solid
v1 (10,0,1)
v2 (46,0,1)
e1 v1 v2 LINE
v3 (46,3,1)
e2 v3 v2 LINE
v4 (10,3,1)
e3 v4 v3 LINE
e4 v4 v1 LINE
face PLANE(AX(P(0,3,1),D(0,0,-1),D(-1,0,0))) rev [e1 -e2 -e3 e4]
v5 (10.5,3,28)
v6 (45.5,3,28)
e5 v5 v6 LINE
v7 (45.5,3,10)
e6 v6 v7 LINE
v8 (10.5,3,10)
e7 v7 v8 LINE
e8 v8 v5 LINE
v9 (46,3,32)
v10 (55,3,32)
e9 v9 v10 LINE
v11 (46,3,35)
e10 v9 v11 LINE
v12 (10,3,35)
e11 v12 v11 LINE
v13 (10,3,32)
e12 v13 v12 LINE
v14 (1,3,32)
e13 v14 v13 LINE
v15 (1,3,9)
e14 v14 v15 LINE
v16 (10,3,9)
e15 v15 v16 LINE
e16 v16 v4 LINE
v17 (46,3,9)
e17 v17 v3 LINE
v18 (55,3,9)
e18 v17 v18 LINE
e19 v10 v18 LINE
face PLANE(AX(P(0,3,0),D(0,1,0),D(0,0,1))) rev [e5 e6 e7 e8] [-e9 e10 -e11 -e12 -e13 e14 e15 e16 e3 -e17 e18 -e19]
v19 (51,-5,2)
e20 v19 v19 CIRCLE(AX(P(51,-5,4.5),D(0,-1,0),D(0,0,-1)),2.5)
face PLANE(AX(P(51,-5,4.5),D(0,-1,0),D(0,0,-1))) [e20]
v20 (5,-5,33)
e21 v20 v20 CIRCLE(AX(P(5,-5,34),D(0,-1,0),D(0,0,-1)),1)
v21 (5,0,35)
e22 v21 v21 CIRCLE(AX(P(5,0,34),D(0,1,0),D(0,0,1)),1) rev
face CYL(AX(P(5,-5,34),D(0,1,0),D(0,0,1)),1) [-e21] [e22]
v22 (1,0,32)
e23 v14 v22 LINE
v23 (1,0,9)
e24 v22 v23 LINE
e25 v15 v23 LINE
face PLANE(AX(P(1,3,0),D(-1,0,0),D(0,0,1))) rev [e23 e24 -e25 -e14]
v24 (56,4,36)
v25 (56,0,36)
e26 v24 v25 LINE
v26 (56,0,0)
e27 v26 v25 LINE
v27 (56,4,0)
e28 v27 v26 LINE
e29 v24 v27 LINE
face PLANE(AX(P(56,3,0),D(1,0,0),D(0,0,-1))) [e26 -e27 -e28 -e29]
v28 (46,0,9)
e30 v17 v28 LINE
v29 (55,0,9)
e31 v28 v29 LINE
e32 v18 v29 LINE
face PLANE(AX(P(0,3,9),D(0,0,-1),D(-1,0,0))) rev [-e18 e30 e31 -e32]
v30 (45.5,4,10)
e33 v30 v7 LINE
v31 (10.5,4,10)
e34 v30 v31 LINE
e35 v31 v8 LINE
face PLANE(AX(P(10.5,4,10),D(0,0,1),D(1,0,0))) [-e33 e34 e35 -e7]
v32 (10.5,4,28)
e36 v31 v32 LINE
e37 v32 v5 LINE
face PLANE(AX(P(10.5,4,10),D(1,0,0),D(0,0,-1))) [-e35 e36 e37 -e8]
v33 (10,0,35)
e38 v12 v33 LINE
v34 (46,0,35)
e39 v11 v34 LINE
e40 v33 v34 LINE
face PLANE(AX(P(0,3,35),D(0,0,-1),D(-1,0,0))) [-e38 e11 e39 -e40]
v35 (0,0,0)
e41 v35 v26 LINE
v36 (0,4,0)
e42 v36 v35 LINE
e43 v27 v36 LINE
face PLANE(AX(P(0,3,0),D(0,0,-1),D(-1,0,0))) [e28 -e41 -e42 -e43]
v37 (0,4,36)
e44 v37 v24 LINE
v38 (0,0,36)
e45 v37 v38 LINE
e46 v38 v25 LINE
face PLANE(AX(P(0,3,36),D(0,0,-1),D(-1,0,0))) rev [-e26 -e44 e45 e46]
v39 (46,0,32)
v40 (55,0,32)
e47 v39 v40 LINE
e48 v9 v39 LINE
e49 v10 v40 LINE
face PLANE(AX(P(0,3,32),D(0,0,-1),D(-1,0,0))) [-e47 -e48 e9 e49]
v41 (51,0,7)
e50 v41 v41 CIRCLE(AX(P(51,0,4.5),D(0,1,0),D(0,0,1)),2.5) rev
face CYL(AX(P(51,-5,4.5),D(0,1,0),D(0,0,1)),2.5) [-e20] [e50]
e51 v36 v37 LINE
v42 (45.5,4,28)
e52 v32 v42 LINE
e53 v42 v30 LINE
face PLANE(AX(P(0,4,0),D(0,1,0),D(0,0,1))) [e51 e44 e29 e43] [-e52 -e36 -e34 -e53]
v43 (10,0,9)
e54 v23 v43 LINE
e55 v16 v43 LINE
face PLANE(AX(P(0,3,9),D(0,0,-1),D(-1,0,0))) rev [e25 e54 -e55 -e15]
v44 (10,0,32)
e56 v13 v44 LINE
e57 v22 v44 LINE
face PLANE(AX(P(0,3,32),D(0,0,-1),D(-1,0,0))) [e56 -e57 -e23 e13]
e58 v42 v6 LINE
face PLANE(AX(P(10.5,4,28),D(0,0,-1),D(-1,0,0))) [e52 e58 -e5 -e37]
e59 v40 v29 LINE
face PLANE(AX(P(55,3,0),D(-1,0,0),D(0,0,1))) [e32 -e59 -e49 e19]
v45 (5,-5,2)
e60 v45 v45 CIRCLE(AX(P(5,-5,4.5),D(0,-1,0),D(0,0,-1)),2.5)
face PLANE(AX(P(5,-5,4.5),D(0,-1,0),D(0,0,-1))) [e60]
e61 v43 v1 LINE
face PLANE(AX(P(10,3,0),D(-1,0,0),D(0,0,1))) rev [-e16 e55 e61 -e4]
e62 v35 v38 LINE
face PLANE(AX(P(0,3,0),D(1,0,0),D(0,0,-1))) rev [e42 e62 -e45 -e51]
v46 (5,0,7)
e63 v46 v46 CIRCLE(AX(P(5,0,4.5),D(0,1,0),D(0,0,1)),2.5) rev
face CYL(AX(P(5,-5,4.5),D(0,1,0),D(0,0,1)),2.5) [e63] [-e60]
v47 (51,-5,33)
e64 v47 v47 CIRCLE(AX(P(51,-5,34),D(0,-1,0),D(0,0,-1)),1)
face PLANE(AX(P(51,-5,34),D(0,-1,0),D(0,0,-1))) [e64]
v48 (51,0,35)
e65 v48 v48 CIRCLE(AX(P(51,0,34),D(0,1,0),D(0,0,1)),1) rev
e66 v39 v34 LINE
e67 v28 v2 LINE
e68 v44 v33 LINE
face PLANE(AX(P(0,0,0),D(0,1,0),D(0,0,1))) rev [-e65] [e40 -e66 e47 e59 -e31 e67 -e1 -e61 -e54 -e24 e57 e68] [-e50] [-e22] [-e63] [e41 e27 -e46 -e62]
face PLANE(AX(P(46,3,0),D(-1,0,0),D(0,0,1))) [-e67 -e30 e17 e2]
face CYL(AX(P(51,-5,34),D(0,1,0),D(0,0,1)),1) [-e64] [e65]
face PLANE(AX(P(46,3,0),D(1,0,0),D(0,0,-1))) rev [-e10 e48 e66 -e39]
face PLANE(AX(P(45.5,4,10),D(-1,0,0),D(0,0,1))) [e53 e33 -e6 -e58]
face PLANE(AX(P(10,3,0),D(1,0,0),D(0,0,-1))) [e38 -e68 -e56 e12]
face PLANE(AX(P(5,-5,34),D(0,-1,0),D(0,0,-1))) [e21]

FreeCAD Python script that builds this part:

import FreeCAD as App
import Part
import Sketcher

V = App.Vector

doc = App.newDocument("Part")
body = doc.addObject("PartDesign::Body", "Body")

# Sketch on XZ plane
sketch1 = body.newObject("Sketcher::SketchObject", "Sketch")
sketch1.AttachmentSupport = (doc.getObject("XZ_Plane"), [""])
sketch1.MapMode = "FlatFace"
sketch1.addGeometry(Part.LineSegment(V(0, 0, 0), V(0, 36, 0)), False)
sketch1.addGeometry(Part.LineSegment(V(0, 36, 0), V(56, 36, 0)), False)
sketch1.addGeometry(Part.LineSegment(V(56, 36, 0), V(56, 0, 0)), False)
sketch1.addGeometry(Part.LineSegment(V(56, 0, 0), V(0, 0, 0)), False)
sketch1.addGeometry(Part.LineSegment(V(10, 35, 0), V(10, 32, 0)), False)
sketch1.addGeometry(Part.LineSegment(V(10, 32, 0), V(1, 32, 0)), False)
sketch1.addGeometry(Part.LineSegment(V(1, 32, 0), V(1, 9, 0)), False)
sketch1.addGeometry(Part.LineSegment(V(1, 9, 0), V(10, 9, 0)), False)
sketch1.addGeometry(Part.LineSegment(V(10, 9, 0), V(10, 1, 0)), False)
sketch1.addGeometry(Part.LineSegment(V(10, 1, 0), V(46, 1, 0)), False)
sketch1.addGeometry(Part.LineSegment(V(46, 1, 0), V(46, 9, 0)), False)
sketch1.addGeometry(Part.LineSegment(V(46, 9, 0), V(55, 9, 0)), False)
sketch1.addGeometry(Part.LineSegment(V(55, 9, 0), V(55, 32, 0)), False)
sketch1.addGeometry(Part.LineSegment(V(55, 32, 0), V(46, 32, 0)), False)
sketch1.addGeometry(Part.LineSegment(V(46, 32, 0), V(46, 35, 0)), False)
sketch1.addGeometry(Part.LineSegment(V(46, 35, 0), V(10, 35, 0)), False)
sketch1.addConstraint(Sketcher.Constraint("Coincident", 0, 2, 1, 1))
sketch1.addConstraint(Sketcher.Constraint("Coincident", 1, 2, 2, 1))
sketch1.addConstraint(Sketcher.Constraint("Coincident", 2, 2, 3, 1))
sketch1.addConstraint(Sketcher.Constraint("Coincident", 3, 2, 0, 1))
sketch1.addConstraint(Sketcher.Constraint("Coincident", 4, 2, 5, 1))
sketch1.addConstraint(Sketcher.Constraint("Coincident", 5, 2, 6, 1))
sketch1.addConstraint(Sketcher.Constraint("Coincident", 6, 2, 7, 1))
sketch1.addConstraint(Sketcher.Constraint("Coincident", 7, 2, 8, 1))
sketch1.addConstraint(Sketcher.Constraint("Coincident", 8, 2, 9, 1))
sketch1.addConstraint(Sketcher.Constraint("Coincident", 9, 2, 10, 1))
sketch1.addConstraint(Sketcher.Constraint("Coincident", 10, 2, 11, 1))
sketch1.addConstraint(Sketcher.Constraint("Coincident", 11, 2, 12, 1))
sketch1.addConstraint(Sketcher.Constraint("Coincident", 12, 2, 13, 1))
sketch1.addConstraint(Sketcher.Constraint("Coincident", 13, 2, 14, 1))
sketch1.addConstraint(Sketcher.Constraint("Coincident", 14, 2, 15, 1))
sketch1.addConstraint(Sketcher.Constraint("Coincident", 15, 2, 4, 1))
sketch1.addConstraint(Sketcher.Constraint("Vertical", 0))
sketch1.addConstraint(Sketcher.Constraint("Horizontal", 1))
sketch1.addConstraint(Sketcher.Constraint("Vertical", 2))
sketch1.addConstraint(Sketcher.Constraint("Horizontal", 3))
sketch1.addConstraint(Sketcher.Constraint("Vertical", 4))
sketch1.addConstraint(Sketcher.Constraint("Horizontal", 5))
sketch1.addConstraint(Sketcher.Constraint("Vertical", 6))
sketch1.addConstraint(Sketcher.Constraint("Horizontal", 7))
sketch1.addConstraint(Sketcher.Constraint("Vertical", 8))
sketch1.addConstraint(Sketcher.Constraint("Horizontal", 9))
sketch1.addConstraint(Sketcher.Constraint("Vertical", 10))
sketch1.addConstraint(Sketcher.Constraint("Horizontal", 11))
sketch1.addConstraint(Sketcher.Constraint("Vertical", 12))
sketch1.addConstraint(Sketcher.Constraint("Horizontal", 13))
sketch1.addConstraint(Sketcher.Constraint("Vertical", 14))
sketch1.addConstraint(Sketcher.Constraint("Horizontal", 15))
sketch1.addConstraint(Sketcher.Constraint("Coincident", 3, 2, -1, 1))
sketch1.addConstraint(Sketcher.Constraint("Horizontal", 7, 2, 10, 2))
sketch1.addConstraint(Sketcher.Constraint("Horizontal", 5, 2, 12, 2))
sketch1.addConstraint(Sketcher.Constraint("Vertical", 4, 2, 7, 2))
sketch1.addConstraint(Sketcher.Constraint("Vertical", 10, 2, 13, 2))
sketch1.addConstraint(Sketcher.Constraint("Equal", 7, 11))
sketch1.addConstraint(Sketcher.Constraint("Equal", 15, 0))
sketch1.addConstraint(Sketcher.Constraint("DistanceX", 1, 1, 1, 2, 56.0))
sketch1.addConstraint(Sketcher.Constraint("DistanceX", 5, 2, 5, 1, 9.0))
sketch1.addConstraint(Sketcher.Constraint("DistanceX", 9, 1, 9, 2, 36.0))
sketch1.addConstraint(Sketcher.Constraint("DistanceY", 4, 2, 4, 1, 3.0))
sketch1.addConstraint(Sketcher.Constraint("DistanceY", 6, 2, 6, 1, 23.0))
sketch1.addConstraint(Sketcher.Constraint("DistanceY", 8, 2, 8, 1, 8.0))
sketch1.addConstraint(Sketcher.Constraint("DistanceX", -1, 1, 4, 2, 10.0))
sketch1.addConstraint(Sketcher.Constraint("DistanceY", -1, 1, 4, 2, 32.0))
pad1 = body.newObject("PartDesign::Pad", "Pad")
pad1.Profile = sketch1
pad1.Length = 3
pad1.Reversed = True

# Sketch on XZ plane
sketch2 = body.newObject("Sketcher::SketchObject", "Sketch001")
sketch2.AttachmentSupport = (doc.getObject("XZ_Plane"), [""])
sketch2.MapMode = "FlatFace"
sketch2.AttachmentOffset = App.Placement(V(0, 0, -3), App.Rotation())
sketch2.addGeometry(Part.LineSegment(V(0, 0, 0), V(0, 36, 0)), False)
sketch2.addGeometry(Part.LineSegment(V(0, 36, 0), V(56, 36, 0)), False)
sketch2.addGeometry(Part.LineSegment(V(56, 36, 0), V(56, 0, 0)), False)
sketch2.addGeometry(Part.LineSegment(V(56, 0, 0), V(0, 0, 0)), False)
sketch2.addGeometry(Part.LineSegment(V(46, 28, 0), V(10, 28, 0)), False)
sketch2.addGeometry(Part.LineSegment(V(10, 28, 0), V(10, 10, 0)), False)
sketch2.addGeometry(Part.LineSegment(V(10, 10, 0), V(46, 10, 0)), False)
sketch2.addGeometry(Part.LineSegment(V(46, 10, 0), V(46, 28, 0)), False)
sketch2.addConstraint(Sketcher.Constraint("Coincident", 0, 2, 1, 1))
sketch2.addConstraint(Sketcher.Constraint("Coincident", 1, 2, 2, 1))
sketch2.addConstraint(Sketcher.Constraint("Coincident", 2, 2, 3, 1))
sketch2.addConstraint(Sketcher.Constraint("Coincident", 3, 2, 0, 1))
sketch2.addConstraint(Sketcher.Constraint("Coincident", 4, 2, 5, 1))
sketch2.addConstraint(Sketcher.Constraint("Coincident", 5, 2, 6, 1))
sketch2.addConstraint(Sketcher.Constraint("Coincident", 6, 2, 7, 1))
sketch2.addConstraint(Sketcher.Constraint("Coincident", 7, 2, 4, 1))
sketch2.addConstraint(Sketcher.Constraint("Vertical", 0))
sketch2.addConstraint(Sketcher.Constraint("Horizontal", 1))
sketch2.addConstraint(Sketcher.Constraint("Vertical", 2))
sketch2.addConstraint(Sketcher.Constraint("Horizontal", 3))
sketch2.addConstraint(Sketcher.Constraint("Horizontal", 4))
sketch2.addConstraint(Sketcher.Constraint("Vertical", 5))
sketch2.addConstraint(Sketcher.Constraint("Horizontal", 6))
sketch2.addConstraint(Sketcher.Constraint("Vertical", 7))
sketch2.addConstraint(Sketcher.Constraint("Coincident", 3, 2, -1, 1))
sketch2.addConstraint(Sketcher.Constraint("DistanceX", 1, 1, 1, 2, 56.0))
sketch2.addConstraint(Sketcher.Constraint("DistanceX", 4, 2, 4, 1, 35.0))
sketch2.addConstraint(Sketcher.Constraint("DistanceY", 0, 1, 0, 2, 36.0))
sketch2.addConstraint(Sketcher.Constraint("DistanceY", 5, 2, 5, 1, 18.0))
sketch2.addConstraint(Sketcher.Constraint("DistanceY", -1, 1, 4, 2, 28.0))
sketch2.addConstraint(Sketcher.Constraint("DistanceX", -1, 1, 4, 2, 10.5))
pad2 = body.newObject("PartDesign::Pad", "Pad001")
pad2.Profile = sketch2
pad2.Length = 1
pad2.Reversed = True

# Sketch on XZ plane
sketch3 = body.newObject("Sketcher::SketchObject", "Sketch002")
sketch3.AttachmentSupport = (doc.getObject("XZ_Plane"), [""])
sketch3.MapMode = "FlatFace"
sketch3.addGeometry(Part.Circle(V(51, 34, 0), V(0, 0, 1), 1), False)
sketch3.addGeometry(Part.Circle(V(5, 34, 0), V(0, 0, 1), 1), False)
sketch3.addGeometry(Part.Circle(V(51, 4.5, 0), V(0, 0, 1), 2.5), False)
sketch3.addGeometry(Part.Circle(V(5, 4.5, 0), V(0, 0, 1), 2.5), False)
sketch3.addConstraint(Sketcher.Constraint("Equal", 0, 1))
sketch3.addConstraint(Sketcher.Constraint("Equal", 2, 3))
sketch3.addConstraint(Sketcher.Constraint("Horizontal", 0, 3, 1, 3))
sketch3.addConstraint(Sketcher.Constraint("Horizontal", 2, 3, 3, 3))
sketch3.addConstraint(Sketcher.Constraint("Vertical", 0, 3, 2, 3))
sketch3.addConstraint(Sketcher.Constraint("Vertical", 1, 3, 3, 3))
sketch3.addConstraint(Sketcher.Constraint("Diameter", 0, 2.0))
sketch3.addConstraint(Sketcher.Constraint("Diameter", 2, 5.0))
sketch3.addConstraint(Sketcher.Constraint("DistanceX", -1, 1, 0, 3, 51.0))
sketch3.addConstraint(Sketcher.Constraint("DistanceY", -1, 1, 0, 3, 34.0))
sketch3.addConstraint(Sketcher.Constraint("DistanceX", -1, 1, 1, 3, 5.0))
sketch3.addConstraint(Sketcher.Constraint("DistanceY", -1, 1, 2, 3, 4.5))
pad3 = body.newObject("PartDesign::Pad", "Pad002")
pad3.Profile = sketch3
pad3.Length = 5

doc.recompute()
